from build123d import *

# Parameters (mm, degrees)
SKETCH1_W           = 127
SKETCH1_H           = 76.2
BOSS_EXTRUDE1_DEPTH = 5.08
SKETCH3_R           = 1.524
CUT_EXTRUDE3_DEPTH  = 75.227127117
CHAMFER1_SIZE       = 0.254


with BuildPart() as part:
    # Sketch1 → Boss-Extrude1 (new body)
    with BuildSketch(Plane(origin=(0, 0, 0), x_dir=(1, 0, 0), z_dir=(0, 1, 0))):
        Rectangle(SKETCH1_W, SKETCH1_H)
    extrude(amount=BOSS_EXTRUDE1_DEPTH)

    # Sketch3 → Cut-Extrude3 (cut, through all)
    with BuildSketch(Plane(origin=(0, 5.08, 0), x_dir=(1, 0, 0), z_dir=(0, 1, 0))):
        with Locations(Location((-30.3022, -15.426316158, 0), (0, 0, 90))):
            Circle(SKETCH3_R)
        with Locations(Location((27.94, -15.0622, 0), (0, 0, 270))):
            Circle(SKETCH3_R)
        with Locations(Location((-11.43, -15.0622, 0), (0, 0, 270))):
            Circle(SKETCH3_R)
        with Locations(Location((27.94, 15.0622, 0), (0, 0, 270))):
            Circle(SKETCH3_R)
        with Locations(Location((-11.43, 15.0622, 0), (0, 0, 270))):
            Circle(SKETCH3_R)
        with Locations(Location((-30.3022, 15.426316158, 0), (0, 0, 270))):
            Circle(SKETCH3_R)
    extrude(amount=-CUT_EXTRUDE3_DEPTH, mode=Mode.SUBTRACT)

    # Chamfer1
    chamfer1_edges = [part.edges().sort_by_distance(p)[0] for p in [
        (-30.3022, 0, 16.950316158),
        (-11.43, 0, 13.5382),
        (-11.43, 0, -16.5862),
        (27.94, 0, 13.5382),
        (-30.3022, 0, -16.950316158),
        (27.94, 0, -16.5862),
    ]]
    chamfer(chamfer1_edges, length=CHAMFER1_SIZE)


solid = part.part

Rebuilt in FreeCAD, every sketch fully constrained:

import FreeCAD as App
import Part
import Sketcher
from FreeCAD import Vector
Q = App.Units.Quantity


def edges_at(feature, points):
    """Names of the edges that pass closest to the given points."""
    edges = feature.Shape.Edges
    near = lambda p: min(range(len(edges)), key=lambda i: edges[i].distToShape(Part.Vertex(*p))[0])
    return sorted({f"Edge{near(p) + 1}" for p in points})


def add_polygon(sketch, points):
    """Adds a closed chain of lines whose ends are joined by coincident constraints."""
    first, n = sketch.GeometryCount, len(points)
    for a, b in zip(points, points[1:] + points[:1]):
        sketch.addGeometry(Part.LineSegment(App.Vector(*a, 0), App.Vector(*b, 0)), False)
    for i in range(n):
        sketch.addConstraint(Sketcher.Constraint("Coincident", first + i, 2, first + (i + 1) % n, 1))

doc = App.newDocument("Part")
params = doc.addObject("Spreadsheet::Sheet", "Params")
for row, (alias, value) in enumerate([
    ("sketch1_width", "5 in"),
    ("sketch1_height", "3 in"),
    ("pad1_length", "0.2 in"),
    ("sketch2_diameter", "0.12 in"),
    ("chamfer_size", "0.01 in"),
], start=1):
    params.set(f"A{row}", alias)
    params.set(f"B{row}", "=" + value)
    params.setAlias(f"B{row}", alias)

body = doc.addObject("PartDesign::Body", "Body")

# Sketch on XZ plane
sketch1 = body.newObject("Sketcher::SketchObject", "Sketch")
sketch1.AttachmentSupport = (doc.getObject("XZ_Plane"), [""])
sketch1.MapMode = "FlatFace"
add_polygon(sketch1, [(-64, -38), (-64, 38), (64, 38), (64, -38)])  # lines 0-3
sketch1.addConstraint([
    Sketcher.Constraint("Vertical", 0),
    Sketcher.Constraint("Horizontal", 1),
    Sketcher.Constraint("Vertical", 2),
    Sketcher.Constraint("Horizontal", 3),
    Sketcher.Constraint("Symmetric", 0, 2, 2, 2, -1, 1),
    Sketcher.Constraint("DistanceX", 1, 1, 1, 2, Q("5 in")),
    Sketcher.Constraint("DistanceY", 0, 1, 0, 2, Q("3 in")),
])
sketch1.setExpression("Constraints[9]", "Params.sketch1_width")
sketch1.setExpression("Constraints[10]", "Params.sketch1_height")
pad1 = body.newObject("PartDesign::Pad", "Pad")
pad1.Profile = sketch1
pad1.setExpression("Length", "Params.pad1_length")
pad1.Reversed = True

# Sketch on XZ plane
sketch2 = body.newObject("Sketcher::SketchObject", "Sketch001")
sketch2.AttachmentSupport = (doc.getObject("XZ_Plane"), [""])
sketch2.MapMode = "FlatFace"
sketch2.AttachmentOffset = App.Placement(Vector(0, 0, -0.2 * 25.4), App.Rotation())
sketch2.addGeometry([
    Part.Circle(Vector(-30.3, 15.4, 0), Vector(0, 0, 1), 1.5),  # 0
    Part.Circle(Vector(27.9, 15.1, 0), Vector(0, 0, 1), 1.5),  # 1
    Part.Circle(Vector(-11.4, 15.1, 0), Vector(0, 0, 1), 1.5),  # 2
    Part.Circle(Vector(27.9, -15.1, 0), Vector(0, 0, 1), 1.5),  # 3
    Part.Circle(Vector(-11.4, -15.1, 0), Vector(0, 0, 1), 1.5),  # 4
    Part.Circle(Vector(-30.3, -15.4, 0), Vector(0, 0, 1), 1.5),  # 5
], False)
sketch2.addConstraint([
    Sketcher.Constraint("Equal", 0, 1),
    Sketcher.Constraint("Equal", 1, 2),
    Sketcher.Constraint("Equal", 2, 3),
    Sketcher.Constraint("Equal", 3, 4),
    Sketcher.Constraint("Equal", 4, 5),
    Sketcher.Constraint("Symmetric", 1, 3, 3, 3, -1),
    Sketcher.Constraint("Symmetric", 2, 3, 4, 3, -1),
    Sketcher.Constraint("Symmetric", 0, 3, 5, 3, -1),
    Sketcher.Constraint("Horizontal", 1, 3, 2, 3),
    Sketcher.Constraint("Diameter", 0, Q("0.12 in")),
    Sketcher.Constraint("DistanceX", -1, 1, 1, 3, Q("1.1 in")),
    Sketcher.Constraint("DistanceX", 2, 3, -1, 1, Q("0.45 in")),
    Sketcher.Constraint("DistanceX", 0, 3, -1, 1, Q("1.193 in")),
    Sketcher.Constraint("DistanceY", -1, 1, 1, 3, Q("0.593 in")),
    Sketcher.Constraint("DistanceY", -1, 1, 0, 3, Q("15.426316 mm")),
])
sketch2.setExpression("Constraints[9]", "Params.sketch2_diameter")
pocket1 = body.newObject("PartDesign::Pocket", "Pocket")
pocket1.Profile = sketch2
pocket1.Type = "ThroughAll"
pocket1.Reversed = True
doc.recompute()

chamfer = body.newObject("PartDesign::Chamfer", "Chamfer")
chamfer.Base = (pocket1, edges_at(pocket1, [
    (-30.302, 0, 16.95),
    (-11.43, 0, 13.538),
    (-11.43, 0, -16.586),
    (27.94, 0, 13.538),
    (-30.302, 0, -16.95),
    (27.94, 0, -16.586),
]))
chamfer.setExpression("Size", "Params.chamfer_size")

doc.recompute()
